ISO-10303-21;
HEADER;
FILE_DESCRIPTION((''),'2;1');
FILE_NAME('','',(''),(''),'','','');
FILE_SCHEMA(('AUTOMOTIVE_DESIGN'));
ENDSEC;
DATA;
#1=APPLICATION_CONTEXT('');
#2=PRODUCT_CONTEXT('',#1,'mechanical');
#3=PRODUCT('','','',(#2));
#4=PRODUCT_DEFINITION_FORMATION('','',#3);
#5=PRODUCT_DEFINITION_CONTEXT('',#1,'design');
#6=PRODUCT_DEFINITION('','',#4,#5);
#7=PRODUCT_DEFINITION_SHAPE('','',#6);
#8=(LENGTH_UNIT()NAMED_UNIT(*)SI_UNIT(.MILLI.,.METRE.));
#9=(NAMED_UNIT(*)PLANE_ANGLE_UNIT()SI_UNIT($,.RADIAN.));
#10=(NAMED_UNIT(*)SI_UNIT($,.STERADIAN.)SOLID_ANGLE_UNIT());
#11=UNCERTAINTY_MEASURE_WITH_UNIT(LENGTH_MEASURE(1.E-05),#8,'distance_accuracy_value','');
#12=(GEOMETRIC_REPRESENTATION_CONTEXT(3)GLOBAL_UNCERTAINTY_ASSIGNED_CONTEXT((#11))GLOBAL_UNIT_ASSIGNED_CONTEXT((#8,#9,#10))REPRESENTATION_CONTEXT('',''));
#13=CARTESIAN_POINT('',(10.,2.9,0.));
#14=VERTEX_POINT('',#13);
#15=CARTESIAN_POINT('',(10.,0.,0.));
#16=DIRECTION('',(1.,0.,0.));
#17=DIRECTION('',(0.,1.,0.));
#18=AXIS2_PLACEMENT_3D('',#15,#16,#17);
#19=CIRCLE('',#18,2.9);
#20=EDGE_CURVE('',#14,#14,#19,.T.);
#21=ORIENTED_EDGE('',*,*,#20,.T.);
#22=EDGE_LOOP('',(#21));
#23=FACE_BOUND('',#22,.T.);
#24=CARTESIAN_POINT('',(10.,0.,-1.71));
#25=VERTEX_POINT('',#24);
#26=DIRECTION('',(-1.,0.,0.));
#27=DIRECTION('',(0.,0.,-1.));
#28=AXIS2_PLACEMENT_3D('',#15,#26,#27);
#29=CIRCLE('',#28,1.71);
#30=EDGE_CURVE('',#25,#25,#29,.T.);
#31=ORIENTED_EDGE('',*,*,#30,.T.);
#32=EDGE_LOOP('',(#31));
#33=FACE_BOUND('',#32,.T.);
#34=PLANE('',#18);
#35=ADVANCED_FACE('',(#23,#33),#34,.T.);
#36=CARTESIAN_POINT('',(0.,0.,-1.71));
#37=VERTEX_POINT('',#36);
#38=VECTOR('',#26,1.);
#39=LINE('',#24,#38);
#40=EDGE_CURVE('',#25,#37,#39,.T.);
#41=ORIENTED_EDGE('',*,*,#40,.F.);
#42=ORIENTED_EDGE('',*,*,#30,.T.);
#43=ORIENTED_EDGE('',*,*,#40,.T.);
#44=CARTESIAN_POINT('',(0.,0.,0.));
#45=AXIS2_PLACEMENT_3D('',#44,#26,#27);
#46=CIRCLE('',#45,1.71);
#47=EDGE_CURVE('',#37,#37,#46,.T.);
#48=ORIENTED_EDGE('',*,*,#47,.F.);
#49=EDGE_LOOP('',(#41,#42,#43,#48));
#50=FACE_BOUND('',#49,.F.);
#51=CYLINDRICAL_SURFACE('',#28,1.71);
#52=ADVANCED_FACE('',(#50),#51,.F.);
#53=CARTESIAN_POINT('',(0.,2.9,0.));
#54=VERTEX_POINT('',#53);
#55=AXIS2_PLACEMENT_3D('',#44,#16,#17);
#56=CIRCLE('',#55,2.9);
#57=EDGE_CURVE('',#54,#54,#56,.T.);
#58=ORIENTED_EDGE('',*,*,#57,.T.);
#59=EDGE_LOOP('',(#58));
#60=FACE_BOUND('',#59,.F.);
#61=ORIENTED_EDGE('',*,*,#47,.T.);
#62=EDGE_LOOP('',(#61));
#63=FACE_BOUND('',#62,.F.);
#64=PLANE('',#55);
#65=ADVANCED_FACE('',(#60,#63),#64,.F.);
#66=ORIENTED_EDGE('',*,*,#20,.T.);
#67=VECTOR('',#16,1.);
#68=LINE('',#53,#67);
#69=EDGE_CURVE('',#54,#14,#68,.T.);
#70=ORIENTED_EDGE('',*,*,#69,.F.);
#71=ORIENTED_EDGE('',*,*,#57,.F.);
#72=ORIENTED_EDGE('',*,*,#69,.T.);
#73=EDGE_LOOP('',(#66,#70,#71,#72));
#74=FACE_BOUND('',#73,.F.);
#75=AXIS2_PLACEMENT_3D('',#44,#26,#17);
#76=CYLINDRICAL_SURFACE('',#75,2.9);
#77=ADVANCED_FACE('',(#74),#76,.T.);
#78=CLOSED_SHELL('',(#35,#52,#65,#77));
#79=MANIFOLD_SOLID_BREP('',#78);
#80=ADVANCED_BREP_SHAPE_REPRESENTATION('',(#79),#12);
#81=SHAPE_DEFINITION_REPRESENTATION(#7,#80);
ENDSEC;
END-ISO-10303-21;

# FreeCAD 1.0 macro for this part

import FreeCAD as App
import Part
import Sketcher
from FreeCAD import Vector
Q = App.Units.Quantity

doc = App.newDocument("Part")
params = doc.addObject("Spreadsheet::Sheet", "Params")
for row, (alias, value) in enumerate([
    ("sketch1_diameter", "5.8 mm"),
    ("pad1_length", "10 mm"),
    ("sketch2_diameter", "3.42 mm"),
    ("hole_diameter", "3.42 mm"),
], start=1):
    params.set(f"A{row}", alias)
    params.set(f"B{row}", "=" + value)
    params.setAlias(f"B{row}", alias)

body = doc.addObject("PartDesign::Body", "Body")

# Sketch on YZ plane
sketch1 = body.newObject("Sketcher::SketchObject", "Sketch")
sketch1.AttachmentSupport = (doc.getObject("YZ_Plane"), [""])
sketch1.MapMode = "FlatFace"
sketch1.addGeometry(Part.Circle(Vector(0, 0, 0), Vector(0, 0, 1), 2.9), False)
sketch1.addConstraint([
    Sketcher.Constraint("Coincident", 0, 3, -1, 1),
    Sketcher.Constraint("Diameter", 0, Q("5.8 mm")),
])
sketch1.setExpression("Constraints[1]", "Params.sketch1_diameter")
pad1 = body.newObject("PartDesign::Pad", "Pad")
pad1.Profile = sketch1
pad1.setExpression("Length", "Params.pad1_length")

# Sketch on YZ plane
sketch2 = body.newObject("Sketcher::SketchObject", "Sketch001")
sketch2.AttachmentSupport = (doc.getObject("YZ_Plane"), [""])
sketch2.MapMode = "FlatFace"
sketch2.AttachmentOffset = App.Placement(Vector(0, 0, 10), App.Rotation())
sketch2.addGeometry(Part.Circle(Vector(0, 0, 0), Vector(0, 0, 1), 1.71), False)
sketch2.addConstraint([
    Sketcher.Constraint("Coincident", 0, 3, -1, 1),
    Sketcher.Constraint("Diameter", 0, Q("3.42 mm")),
])
sketch2.setExpression("Constraints[1]", "Params.sketch2_diameter")
doc.recompute()
hole = body.newObject("PartDesign::Hole", "Hole")
hole.Profile = sketch2
hole.ThreadType = "None"
hole.setExpression("Diameter", "Params.hole_diameter")
hole.DepthType = "ThroughAll"

doc.recompute()
